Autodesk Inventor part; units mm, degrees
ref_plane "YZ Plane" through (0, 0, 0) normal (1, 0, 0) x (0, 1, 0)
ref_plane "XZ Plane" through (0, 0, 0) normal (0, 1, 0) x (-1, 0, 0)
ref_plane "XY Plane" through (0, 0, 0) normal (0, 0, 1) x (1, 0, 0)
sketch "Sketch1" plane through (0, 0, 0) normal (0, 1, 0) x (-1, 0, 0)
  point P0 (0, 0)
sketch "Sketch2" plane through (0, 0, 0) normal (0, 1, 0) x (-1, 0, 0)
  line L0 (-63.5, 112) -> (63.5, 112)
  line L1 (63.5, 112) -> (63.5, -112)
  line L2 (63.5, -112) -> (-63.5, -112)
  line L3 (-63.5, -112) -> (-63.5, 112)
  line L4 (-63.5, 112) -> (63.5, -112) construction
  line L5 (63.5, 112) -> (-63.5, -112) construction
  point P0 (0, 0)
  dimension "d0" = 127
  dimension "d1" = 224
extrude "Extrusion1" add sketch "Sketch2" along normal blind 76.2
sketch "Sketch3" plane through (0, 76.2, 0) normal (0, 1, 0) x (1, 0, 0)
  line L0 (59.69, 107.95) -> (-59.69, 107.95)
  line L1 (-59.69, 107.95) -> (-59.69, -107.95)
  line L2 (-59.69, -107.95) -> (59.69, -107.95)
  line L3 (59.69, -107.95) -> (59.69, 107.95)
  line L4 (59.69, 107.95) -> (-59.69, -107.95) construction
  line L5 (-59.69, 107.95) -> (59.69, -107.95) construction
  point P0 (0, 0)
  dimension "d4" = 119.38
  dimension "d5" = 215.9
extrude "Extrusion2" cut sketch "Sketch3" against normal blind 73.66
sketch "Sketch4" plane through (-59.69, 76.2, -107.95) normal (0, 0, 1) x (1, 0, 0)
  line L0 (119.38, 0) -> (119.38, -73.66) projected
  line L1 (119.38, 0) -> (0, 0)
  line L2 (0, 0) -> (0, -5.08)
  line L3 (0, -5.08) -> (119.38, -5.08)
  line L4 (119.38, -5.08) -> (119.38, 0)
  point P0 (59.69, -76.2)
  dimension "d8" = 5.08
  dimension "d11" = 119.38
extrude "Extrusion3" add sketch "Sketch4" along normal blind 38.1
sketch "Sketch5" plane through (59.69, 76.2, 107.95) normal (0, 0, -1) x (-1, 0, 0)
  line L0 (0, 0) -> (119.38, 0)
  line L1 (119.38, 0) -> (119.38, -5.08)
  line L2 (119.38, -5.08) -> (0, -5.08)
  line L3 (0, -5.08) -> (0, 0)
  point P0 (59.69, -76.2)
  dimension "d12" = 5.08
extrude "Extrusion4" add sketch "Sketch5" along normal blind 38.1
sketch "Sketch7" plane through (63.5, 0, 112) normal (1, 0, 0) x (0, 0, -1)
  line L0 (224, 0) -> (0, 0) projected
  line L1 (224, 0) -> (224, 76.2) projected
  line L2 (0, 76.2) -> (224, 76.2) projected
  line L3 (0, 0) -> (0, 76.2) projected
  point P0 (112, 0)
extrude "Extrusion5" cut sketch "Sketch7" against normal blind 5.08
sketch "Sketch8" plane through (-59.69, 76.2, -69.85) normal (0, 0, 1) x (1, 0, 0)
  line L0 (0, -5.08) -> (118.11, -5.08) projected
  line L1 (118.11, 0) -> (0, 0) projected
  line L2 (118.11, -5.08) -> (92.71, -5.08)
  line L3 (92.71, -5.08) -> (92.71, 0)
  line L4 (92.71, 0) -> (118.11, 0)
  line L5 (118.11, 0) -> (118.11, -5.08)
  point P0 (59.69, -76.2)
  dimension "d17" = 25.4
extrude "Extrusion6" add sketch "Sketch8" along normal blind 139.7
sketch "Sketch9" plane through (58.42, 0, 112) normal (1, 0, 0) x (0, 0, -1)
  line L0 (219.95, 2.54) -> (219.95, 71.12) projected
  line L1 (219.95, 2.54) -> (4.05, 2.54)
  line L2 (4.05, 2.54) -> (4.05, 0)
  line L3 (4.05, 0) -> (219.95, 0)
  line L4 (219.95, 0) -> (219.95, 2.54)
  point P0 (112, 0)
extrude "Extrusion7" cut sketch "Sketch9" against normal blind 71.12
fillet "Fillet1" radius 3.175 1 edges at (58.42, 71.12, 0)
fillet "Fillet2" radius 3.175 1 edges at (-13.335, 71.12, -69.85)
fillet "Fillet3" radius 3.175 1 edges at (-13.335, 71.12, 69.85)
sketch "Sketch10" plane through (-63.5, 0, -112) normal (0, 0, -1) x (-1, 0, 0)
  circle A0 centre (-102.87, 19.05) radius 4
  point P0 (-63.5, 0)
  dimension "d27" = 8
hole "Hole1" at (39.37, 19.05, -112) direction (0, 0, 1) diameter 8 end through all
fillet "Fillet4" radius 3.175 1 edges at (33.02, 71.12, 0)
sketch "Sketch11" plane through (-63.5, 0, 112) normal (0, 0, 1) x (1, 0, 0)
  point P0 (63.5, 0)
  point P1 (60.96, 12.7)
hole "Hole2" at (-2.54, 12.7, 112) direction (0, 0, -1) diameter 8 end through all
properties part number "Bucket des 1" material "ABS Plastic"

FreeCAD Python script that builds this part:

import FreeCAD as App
import Part
import Sketcher
from FreeCAD import Vector
Q = App.Units.Quantity


def edges_at(feature, points):
    """Names of the edges that pass closest to the given points."""
    edges = feature.Shape.Edges
    near = lambda p: min(range(len(edges)), key=lambda i: edges[i].distToShape(Part.Vertex(*p))[0])
    return sorted({f"Edge{near(p) + 1}" for p in points})

doc = App.newDocument("Part")
params = doc.addObject("Spreadsheet::Sheet", "Params")
for row, (alias, value) in enumerate([
    ("sketch1_width", "5 in"),
    ("pad1_length", "3 in"),
    ("sketch2_width", "4.7 in"),
    ("sketch2_height", "8.5 in"),
    ("pocket1_length", "2.9 in"),
    ("sketch3_width", "4.7 in"),
    ("sketch3_height", "0.2 in"),
    ("pad2_length", "1.5 in"),
    ("sketch4_height", "0.2 in"),
    ("sketch4_width", "4.7 in"),
    ("pad3_length", "1.5 in"),
    ("sketch5_width", "3 in"),
    ("pocket2_length", "0.2 in"),
    ("sketch6_width", "1 in"),
    ("sketch6_height", "0.2 in"),
    ("pad4_length", "5.5 in"),
    ("sketch7_width", "0.1 in"),
    ("sketch7_height", "8.5 in"),
    ("pocket3_length", "2.8 in"),
    ("fillet_radius", "0.125 in"),
    ("fillet2_radius", "0.125 in"),
    ("fillet3_radius", "0.125 in"),
    ("hole_diameter", "8 mm"),
    ("fillet4_radius", "0.125 in"),
    ("hole2_diameter", "8 mm"),
], start=1):
    params.set(f"A{row}", alias)
    params.set(f"B{row}", "=" + value)
    params.setAlias(f"B{row}", alias)

body = doc.addObject("PartDesign::Body", "Body")

# Sketch on XZ plane
sketch1 = body.newObject("Sketcher::SketchObject", "Sketch")
sketch1.AttachmentSupport = (doc.getObject("XZ_Plane"), [""])
sketch1.MapMode = "FlatFace"
sketch1.addGeometry([
    Part.LineSegment(Vector(-64, 112, 0), Vector(64, 112, 0)),
    Part.LineSegment(Vector(64, 112, 0), Vector(64, -112, 0)),
    Part.LineSegment(Vector(64, -112, 0), Vector(-64, -112, 0)),
    Part.LineSegment(Vector(-64, -112, 0), Vector(-64, 112, 0)),
], False)
sketch1.addConstraint([
    Sketcher.Constraint("Coincident", 0, 2, 1, 1),
    Sketcher.Constraint("Coincident", 1, 2, 2, 1),
    Sketcher.Constraint("Coincident", 2, 2, 3, 1),
    Sketcher.Constraint("Coincident", 3, 2, 0, 1),
    Sketcher.Constraint("Horizontal", 0),
    Sketcher.Constraint("Vertical", 1),
    Sketcher.Constraint("Horizontal", 2),
    Sketcher.Constraint("Vertical", 3),
    Sketcher.Constraint("Symmetric", 0, 2, 2, 2, -1, 1),
    Sketcher.Constraint("DistanceX", 0, 1, 0, 2, Q("5 in")),
    Sketcher.Constraint("DistanceY", 1, 2, 1, 1, Q("8.8189 in")),
])
sketch1.setExpression("Constraints[9]", "Params.sketch1_width")
pad1 = body.newObject("PartDesign::Pad", "Pad")
pad1.Profile = sketch1
pad1.setExpression("Length", "Params.pad1_length")
pad1.Reversed = True

# Sketch on XZ plane
sketch2 = body.newObject("Sketcher::SketchObject", "Sketch001")
sketch2.AttachmentSupport = (doc.getObject("XZ_Plane"), [""])
sketch2.MapMode = "FlatFace"
sketch2.AttachmentOffset = App.Placement(Vector(0, 0, -3 * 25.4), App.Rotation())
sketch2.addGeometry([
    Part.LineSegment(Vector(60, 108, 0), Vector(60, -108, 0)),
    Part.LineSegment(Vector(60, -108, 0), Vector(-60, -108, 0)),
    Part.LineSegment(Vector(-60, -108, 0), Vector(-60, 108, 0)),
    Part.LineSegment(Vector(-60, 108, 0), Vector(60, 108, 0)),
], False)
sketch2.addConstraint([
    Sketcher.Constraint("Coincident", 0, 2, 1, 1),
    Sketcher.Constraint("Coincident", 1, 2, 2, 1),
    Sketcher.Constraint("Coincident", 2, 2, 3, 1),
    Sketcher.Constraint("Coincident", 3, 2, 0, 1),
    Sketcher.Constraint("Vertical", 0),
    Sketcher.Constraint("Horizontal", 1),
    Sketcher.Constraint("Vertical", 2),
    Sketcher.Constraint("Horizontal", 3),
    Sketcher.Constraint("Symmetric", 0, 2, 2, 2, -1, 1),
    Sketcher.Constraint("DistanceX", 1, 2, 1, 1, Q("4.7 in")),
    Sketcher.Constraint("DistanceY", 0, 2, 0, 1, Q("8.5 in")),
])
sketch2.setExpression("Constraints[9]", "Params.sketch2_width")
sketch2.setExpression("Constraints[10]", "Params.sketch2_height")
pocket1 = body.newObject("PartDesign::Pocket", "Pocket")
pocket1.Profile = sketch2
pocket1.setExpression("Length", "Params.pocket1_length")
pocket1.Reversed = True

# Sketch on XY plane
sketch3 = body.newObject("Sketcher::SketchObject", "Sketch002")
sketch3.AttachmentSupport = (doc.getObject("XY_Plane"), [""])
sketch3.MapMode = "FlatFace"
sketch3.AttachmentOffset = App.Placement(Vector(0, 0, -4.25 * 25.4), App.Rotation())
sketch3.addGeometry([
    Part.LineSegment(Vector(60, 71, 0), Vector(60, 76, 0)),
    Part.LineSegment(Vector(60, 76, 0), Vector(-60, 76, 0)),
    Part.LineSegment(Vector(-60, 76, 0), Vector(-60, 71, 0)),
    Part.LineSegment(Vector(-60, 71, 0), Vector(60, 71, 0)),
], False)
sketch3.addConstraint([
    Sketcher.Constraint("Coincident", 0, 2, 1, 1),
    Sketcher.Constraint("Coincident", 1, 2, 2, 1),
    Sketcher.Constraint("Coincident", 2, 2, 3, 1),
    Sketcher.Constraint("Coincident", 3, 2, 0, 1),
    Sketcher.Constraint("Vertical", 0),
    Sketcher.Constraint("Horizontal", 1),
    Sketcher.Constraint("Vertical", 2),
    Sketcher.Constraint("Horizontal", 3),
    Sketcher.Constraint("DistanceX", 1, 2, 1, 1, Q("4.7 in")),
    Sketcher.Constraint("DistanceY", 0, 1, 0, 2, Q("0.2 in")),
    Sketcher.Constraint("DistanceY", -1, 1, 0, 2, Q("3 in")),
    Sketcher.Constraint("DistanceX", -1, 1, 0, 2, Q("2.35 in")),
])
sketch3.setExpression("Constraints[8]", "Params.sketch3_width")
sketch3.setExpression("Constraints[9]", "Params.sketch3_height")
pad2 = body.newObject("PartDesign::Pad", "Pad001")
pad2.Profile = sketch3
pad2.setExpression("Length", "Params.pad2_length")

# Sketch on XY plane
sketch4 = body.newObject("Sketcher::SketchObject", "Sketch003")
sketch4.AttachmentSupport = (doc.getObject("XY_Plane"), [""])
sketch4.MapMode = "FlatFace"
sketch4.AttachmentOffset = App.Placement(Vector(0, 0, 4.25 * 25.4), App.Rotation())
sketch4.addGeometry([
    Part.LineSegment(Vector(-60, 76, 0), Vector(60, 76, 0)),
    Part.LineSegment(Vector(60, 76, 0), Vector(60, 71, 0)),
    Part.LineSegment(Vector(60, 71, 0), Vector(-60, 71, 0)),
    Part.LineSegment(Vector(-60, 71, 0), Vector(-60, 76, 0)),
], False)
sketch4.addConstraint([
    Sketcher.Constraint("Coincident", 0, 2, 1, 1),
    Sketcher.Constraint("Coincident", 1, 2, 2, 1),
    Sketcher.Constraint("Coincident", 2, 2, 3, 1),
    Sketcher.Constraint("Coincident", 3, 2, 0, 1),
    Sketcher.Constraint("Horizontal", 0),
    Sketcher.Constraint("Vertical", 1),
    Sketcher.Constraint("Horizontal", 2),
    Sketcher.Constraint("Vertical", 3),
    Sketcher.Constraint("DistanceY", 1, 2, 1, 1, Q("0.2 in")),
    Sketcher.Constraint("DistanceX", 0, 1, 0, 2, Q("4.7 in")),
    Sketcher.Constraint("DistanceY", -1, 1, 0, 2, Q("3 in")),
    Sketcher.Constraint("DistanceX", -1, 1, 0, 2, Q("2.35 in")),
])
sketch4.setExpression("Constraints[8]", "Params.sketch4_height")
sketch4.setExpression("Constraints[9]", "Params.sketch4_width")
pad3 = body.newObject("PartDesign::Pad", "Pad002")
pad3.Profile = sketch4
pad3.setExpression("Length", "Params.pad3_length")
pad3.Reversed = True

# Sketch on YZ plane
sketch5 = body.newObject("Sketcher::SketchObject", "Sketch004")
sketch5.AttachmentSupport = (doc.getObject("YZ_Plane"), [""])
sketch5.MapMode = "FlatFace"
sketch5.AttachmentOffset = App.Placement(Vector(0, 0, 2.5 * 25.4), App.Rotation())
sketch5.addGeometry([
    Part.LineSegment(Vector(0, 112, 0), Vector(0, -112, 0)),
    Part.LineSegment(Vector(0, -112, 0), Vector(76, -112, 0)),
    Part.LineSegment(Vector(76, -112, 0), Vector(76, 112, 0)),
    Part.LineSegment(Vector(76, 112, 0), Vector(0, 112, 0)),
], False)
sketch5.addConstraint([
    Sketcher.Constraint("Coincident", 0, 2, 1, 1),
    Sketcher.Constraint("Coincident", 1, 2, 2, 1),
    Sketcher.Constraint("Coincident", 2, 2, 3, 1),
    Sketcher.Constraint("Coincident", 3, 2, 0, 1),
    Sketcher.Constraint("Vertical", 0),
    Sketcher.Constraint("Horizontal", 1),
    Sketcher.Constraint("Vertical", 2),
    Sketcher.Constraint("Horizontal", 3),
    Sketcher.Constraint("Symmetric", 0, 2, 3, 2, -1, 1),
    Sketcher.Constraint("DistanceX", 1, 1, 1, 2, Q("3 in")),
    Sketcher.Constraint("DistanceY", 0, 2, 0, 1, Q("8.8189 in")),
])
sketch5.setExpression("Constraints[9]", "Params.sketch5_width")
pocket2 = body.newObject("PartDesign::Pocket", "Pocket001")
pocket2.Profile = sketch5
pocket2.setExpression("Length", "Params.pocket2_length")

# Sketch on XY plane
sketch6 = body.newObject("Sketcher::SketchObject", "Sketch005")
sketch6.AttachmentSupport = (doc.getObject("XY_Plane"), [""])
sketch6.MapMode = "FlatFace"
sketch6.AttachmentOffset = App.Placement(Vector(0, 0, -2.75 * 25.4), App.Rotation())
sketch6.addGeometry([
    Part.LineSegment(Vector(33, 76, 0), Vector(33, 71, 0)),
    Part.LineSegment(Vector(33, 71, 0), Vector(58, 71, 0)),
    Part.LineSegment(Vector(58, 71, 0), Vector(58, 76, 0)),
    Part.LineSegment(Vector(58, 76, 0), Vector(33, 76, 0)),
], False)
sketch6.addConstraint([
    Sketcher.Constraint("Coincident", 0, 2, 1, 1),
    Sketcher.Constraint("Coincident", 1, 2, 2, 1),
    Sketcher.Constraint("Coincident", 2, 2, 3, 1),
    Sketcher.Constraint("Coincident", 3, 2, 0, 1),
    Sketcher.Constraint("Vertical", 0),
    Sketcher.Constraint("Horizontal", 1),
    Sketcher.Constraint("Vertical", 2),
    Sketcher.Constraint("Horizontal", 3),
    Sketcher.Constraint("DistanceX", 1, 1, 1, 2, Q("1 in")),
    Sketcher.Constraint("DistanceY", 0, 2, 0, 1, Q("0.2 in")),
    Sketcher.Constraint("DistanceY", -1, 1, 2, 2, Q("3 in")),
    Sketcher.Constraint("DistanceX", -1, 1, 0, 2, Q("1.3 in")),
])
sketch6.setExpression("Constraints[8]", "Params.sketch6_width")
sketch6.setExpression("Constraints[9]", "Params.sketch6_height")
pad4 = body.newObject("PartDesign::Pad", "Pad003")
pad4.Profile = sketch6
pad4.setExpression("Length", "Params.pad4_length")

# Sketch on YZ plane
sketch7 = body.newObject("Sketcher::SketchObject", "Sketch006")
sketch7.AttachmentSupport = (doc.getObject("YZ_Plane"), [""])
sketch7.MapMode = "FlatFace"
sketch7.AttachmentOffset = App.Placement(Vector(0, 0, 2.3 * 25.4), App.Rotation())
sketch7.addGeometry([
    Part.LineSegment(Vector(0, -108, 0), Vector(2.5, -108, 0)),
    Part.LineSegment(Vector(2.5, -108, 0), Vector(2.5, 108, 0)),
    Part.LineSegment(Vector(2.5, 108, 0), Vector(0, 108, 0)),
    Part.LineSegment(Vector(0, 108, 0), Vector(0, -108, 0)),
], False)
sketch7.addConstraint([
    Sketcher.Constraint("Coincident", 0, 2, 1, 1),
    Sketcher.Constraint("Coincident", 1, 2, 2, 1),
    Sketcher.Constraint("Coincident", 2, 2, 3, 1),
    Sketcher.Constraint("Coincident", 3, 2, 0, 1),
    Sketcher.Constraint("Horizontal", 0),
    Sketcher.Constraint("Vertical", 1),
    Sketcher.Constraint("Horizontal", 2),
    Sketcher.Constraint("Vertical", 3),
    Sketcher.Constraint("Symmetric", 2, 2, 3, 2, -1, 1),
    Sketcher.Constraint("DistanceX", 0, 1, 0, 2, Q("0.1 in")),
    Sketcher.Constraint("DistanceY", 1, 1, 1, 2, Q("8.5 in")),
])
sketch7.setExpression("Constraints[9]", "Params.sketch7_width")
sketch7.setExpression("Constraints[10]", "Params.sketch7_height")
pocket3 = body.newObject("PartDesign::Pocket", "Pocket002")
pocket3.Profile = sketch7
pocket3.setExpression("Length", "Params.pocket3_length")
doc.recompute()

fillet = body.newObject("PartDesign::Fillet", "Fillet")
fillet.Base = (pocket3, edges_at(pocket3, [(58.42, 71.12, 0)]))
fillet.setExpression("Radius", "Params.fillet_radius")
doc.recompute()

fillet2 = body.newObject("PartDesign::Fillet", "Fillet001")
fillet2.Base = (fillet, edges_at(fillet, [(-13.335, 71.12, -69.85)]))
fillet2.setExpression("Radius", "Params.fillet2_radius")
doc.recompute()

fillet3 = body.newObject("PartDesign::Fillet", "Fillet002")
fillet3.Base = (fillet2, edges_at(fillet2, [(-13.335, 71.12, 69.85)]))
fillet3.setExpression("Radius", "Params.fillet3_radius")

# Sketch on XY plane
sketch8 = body.newObject("Sketcher::SketchObject", "Sketch007")
sketch8.AttachmentSupport = (doc.getObject("XY_Plane"), [""])
sketch8.MapMode = "FlatFace"
sketch8.AttachmentOffset = App.Placement(Vector(0, 0, -112), App.Rotation())
sketch8.addGeometry(Part.Circle(Vector(39.4, 19.1, 0), Vector(0, 0, 1), 4), False)
sketch8.addConstraint([
    Sketcher.Constraint("Diameter", 0, Q("8 mm")),
    Sketcher.Constraint("DistanceX", -1, 1, 0, 3, Q("1.55 in")),
    Sketcher.Constraint("DistanceY", -1, 1, 0, 3, Q("0.75 in")),
])
doc.recompute()
hole = body.newObject("PartDesign::Hole", "Hole")
hole.Profile = sketch8
hole.ThreadType = "None"
hole.setExpression("Diameter", "Params.hole_diameter")
hole.DepthType = "ThroughAll"
hole.Reversed = True
doc.recompute()

fillet4 = body.newObject("PartDesign::Fillet", "Fillet003")
fillet4.Base = (hole, edges_at(hole, [(33.02, 71.12, 0)]))
fillet4.setExpression("Radius", "Params.fillet4_radius")

# Sketch on XY plane
sketch9 = body.newObject("Sketcher::SketchObject", "Sketch008")
sketch9.AttachmentSupport = (doc.getObject("XY_Plane"), [""])
sketch9.MapMode = "FlatFace"
sketch9.AttachmentOffset = App.Placement(Vector(0, 0, 112), App.Rotation())
sketch9.addGeometry(Part.Circle(Vector(-2.5, 12.7, 0), Vector(0, 0, 1), 4), False)
sketch9.addConstraint([
    Sketcher.Constraint("DistanceX", 0, 3, -1, 1, Q("0.1 in")),
    Sketcher.Constraint("DistanceY", -1, 1, 0, 3, Q("0.5 in")),
    Sketcher.Constraint("Diameter", 0, Q("8 mm")),
])
doc.recompute()
hole2 = body.newObject("PartDesign::Hole", "Hole001")
hole2.Profile = sketch9
hole2.ThreadType = "None"
hole2.setExpression("Diameter", "Params.hole2_diameter")
hole2.DepthType = "ThroughAll"

doc.recompute()
